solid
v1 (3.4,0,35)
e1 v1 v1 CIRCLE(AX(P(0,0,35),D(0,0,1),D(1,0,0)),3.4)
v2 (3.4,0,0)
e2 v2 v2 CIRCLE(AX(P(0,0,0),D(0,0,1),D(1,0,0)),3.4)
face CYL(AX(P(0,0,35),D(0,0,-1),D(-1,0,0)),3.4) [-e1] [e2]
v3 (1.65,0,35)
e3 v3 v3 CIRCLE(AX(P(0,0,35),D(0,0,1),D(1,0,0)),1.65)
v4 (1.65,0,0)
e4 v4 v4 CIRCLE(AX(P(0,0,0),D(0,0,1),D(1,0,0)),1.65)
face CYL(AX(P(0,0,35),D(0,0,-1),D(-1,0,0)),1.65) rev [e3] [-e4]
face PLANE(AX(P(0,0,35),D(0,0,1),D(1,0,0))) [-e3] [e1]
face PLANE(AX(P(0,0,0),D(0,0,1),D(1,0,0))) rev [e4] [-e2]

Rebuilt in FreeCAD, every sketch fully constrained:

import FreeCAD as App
import Part
import Sketcher
from FreeCAD import Vector

doc = App.newDocument("Part")
body = doc.addObject("PartDesign::Body", "Body")

# Sketch on XY plane
sketch1 = doc.addObject("Sketcher::SketchObject", "Sketch")
body.addObject(sketch1)
sketch1.AttachmentSupport = (doc.XY_Plane, [""])
sketch1.MapMode = "FlatFace"
sketch1.addGeometry(Part.Circle(Vector(0, 0, 0), Vector(0, 0, 1), 3.4), False)
sketch1.addGeometry(Part.Circle(Vector(0, 0, 0), Vector(0, 0, 1), 1.6), False)
sketch1.addConstraint(Sketcher.Constraint("Coincident", 0, 3, -1, 1))
sketch1.addConstraint(Sketcher.Constraint("Coincident", 1, 3, -1, 1))
sketch1.addConstraint(Sketcher.Constraint("Diameter", 0, 6.8))
sketch1.addConstraint(Sketcher.Constraint("Diameter", 1, 3.3))
pad1 = doc.addObject("PartDesign::Pad", "Pad")
body.addObject(pad1)
pad1.Profile = sketch1
pad1.Length = 35

doc.recompute()
